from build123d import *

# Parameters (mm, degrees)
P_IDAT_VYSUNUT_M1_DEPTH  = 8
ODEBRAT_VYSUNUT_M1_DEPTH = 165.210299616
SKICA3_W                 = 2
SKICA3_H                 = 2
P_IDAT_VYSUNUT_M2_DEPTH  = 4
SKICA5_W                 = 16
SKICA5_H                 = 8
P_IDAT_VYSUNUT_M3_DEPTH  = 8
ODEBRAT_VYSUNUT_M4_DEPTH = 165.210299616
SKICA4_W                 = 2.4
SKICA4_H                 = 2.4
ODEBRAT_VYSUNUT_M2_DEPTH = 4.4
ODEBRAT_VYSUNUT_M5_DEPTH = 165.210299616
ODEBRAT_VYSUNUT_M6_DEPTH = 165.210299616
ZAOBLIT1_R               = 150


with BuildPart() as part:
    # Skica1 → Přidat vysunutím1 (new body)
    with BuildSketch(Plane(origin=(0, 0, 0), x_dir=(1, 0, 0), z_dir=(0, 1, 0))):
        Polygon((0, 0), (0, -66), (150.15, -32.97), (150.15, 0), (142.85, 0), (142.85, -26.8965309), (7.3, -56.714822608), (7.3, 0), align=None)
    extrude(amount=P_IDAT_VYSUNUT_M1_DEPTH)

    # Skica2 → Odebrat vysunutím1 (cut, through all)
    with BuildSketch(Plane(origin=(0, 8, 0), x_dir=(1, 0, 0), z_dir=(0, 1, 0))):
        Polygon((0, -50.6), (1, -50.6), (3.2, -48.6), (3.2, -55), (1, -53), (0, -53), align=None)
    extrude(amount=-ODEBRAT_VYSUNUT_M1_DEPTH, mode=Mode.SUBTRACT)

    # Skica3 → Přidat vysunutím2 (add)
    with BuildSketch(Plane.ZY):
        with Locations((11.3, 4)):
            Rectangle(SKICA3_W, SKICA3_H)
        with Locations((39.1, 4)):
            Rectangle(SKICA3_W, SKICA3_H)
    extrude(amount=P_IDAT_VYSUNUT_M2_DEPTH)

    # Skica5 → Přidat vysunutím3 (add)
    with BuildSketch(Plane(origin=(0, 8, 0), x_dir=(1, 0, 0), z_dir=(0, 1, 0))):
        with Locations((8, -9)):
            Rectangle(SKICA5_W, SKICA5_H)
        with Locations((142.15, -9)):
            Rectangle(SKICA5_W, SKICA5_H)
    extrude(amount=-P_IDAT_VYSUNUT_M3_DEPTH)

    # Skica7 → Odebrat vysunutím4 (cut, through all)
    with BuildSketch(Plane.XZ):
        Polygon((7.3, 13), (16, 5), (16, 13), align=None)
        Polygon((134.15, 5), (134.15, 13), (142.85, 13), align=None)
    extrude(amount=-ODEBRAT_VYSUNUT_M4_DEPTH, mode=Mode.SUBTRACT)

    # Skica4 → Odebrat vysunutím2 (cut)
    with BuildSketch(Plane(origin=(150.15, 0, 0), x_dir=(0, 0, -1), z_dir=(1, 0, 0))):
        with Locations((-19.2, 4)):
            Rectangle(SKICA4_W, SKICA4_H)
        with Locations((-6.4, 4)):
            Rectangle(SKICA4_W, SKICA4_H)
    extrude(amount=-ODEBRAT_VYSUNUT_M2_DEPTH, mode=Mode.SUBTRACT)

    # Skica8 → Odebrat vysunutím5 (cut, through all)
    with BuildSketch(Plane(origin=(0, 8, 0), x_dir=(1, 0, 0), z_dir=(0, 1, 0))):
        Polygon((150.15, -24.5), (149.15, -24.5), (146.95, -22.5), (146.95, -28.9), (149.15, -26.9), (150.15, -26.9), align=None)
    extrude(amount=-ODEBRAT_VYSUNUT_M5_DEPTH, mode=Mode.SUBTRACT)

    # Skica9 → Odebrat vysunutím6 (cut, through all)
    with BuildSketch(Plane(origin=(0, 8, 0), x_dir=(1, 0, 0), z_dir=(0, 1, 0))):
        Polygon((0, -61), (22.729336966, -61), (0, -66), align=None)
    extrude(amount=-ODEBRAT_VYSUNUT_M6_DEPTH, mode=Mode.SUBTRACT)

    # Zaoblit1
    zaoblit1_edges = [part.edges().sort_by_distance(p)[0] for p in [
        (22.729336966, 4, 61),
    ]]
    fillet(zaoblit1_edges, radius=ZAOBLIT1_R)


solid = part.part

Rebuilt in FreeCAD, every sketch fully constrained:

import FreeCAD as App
import Part
import Sketcher
from FreeCAD import Vector
Q = App.Units.Quantity


def edges_at(feature, points):
    """Names of the edges that pass closest to the given points."""
    edges = feature.Shape.Edges
    near = lambda p: min(range(len(edges)), key=lambda i: edges[i].distToShape(Part.Vertex(*p))[0])
    return sorted({f"Edge{near(p) + 1}" for p in points})


def add_polygon(sketch, points):
    """Adds a closed chain of lines whose ends are joined by coincident constraints."""
    first, n = sketch.GeometryCount, len(points)
    for a, b in zip(points, points[1:] + points[:1]):
        sketch.addGeometry(Part.LineSegment(App.Vector(*a, 0), App.Vector(*b, 0)), False)
    for i in range(n):
        sketch.addConstraint(Sketcher.Constraint("Coincident", first + i, 2, first + (i + 1) % n, 1))

doc = App.newDocument("Part")
body = doc.addObject("PartDesign::Body", "Body")

# Sketch on XZ plane
sketch1 = body.newObject("Sketcher::SketchObject", "Sketch")
sketch1.AttachmentSupport = (doc.getObject("XZ_Plane"), [""])
sketch1.MapMode = "FlatFace"
add_polygon(sketch1, [(0, 0), (0, 66), (150, 33), (150, 0), (143, 0), (143, 27), (7, 57), (7, 0)])  # lines 0-7
sketch1.addConstraint([
    Sketcher.Constraint("Vertical", 0),
    Sketcher.Constraint("Vertical", 2),
    Sketcher.Constraint("Horizontal", 3),
    Sketcher.Constraint("Vertical", 4),
    Sketcher.Constraint("Vertical", 6),
    Sketcher.Constraint("Horizontal", 7),
    Sketcher.Constraint("Coincident", 7, 2, -1, 1),
    Sketcher.Constraint("PointOnObject", 2, 2, -1),
    Sketcher.Constraint("Parallel", 1, 5),
    Sketcher.Constraint("Equal", 3, 7),
    Sketcher.Constraint("DistanceY", 0, 1, 0, 2, Q("66 mm")),
    Sketcher.Constraint("DistanceX", 3, 2, 3, 1, Q("7.3 mm")),
    Sketcher.Constraint("DistanceY", 2, 2, 2, 1, Q("32.97 mm")),
    Sketcher.Constraint("DistanceX", -1, 1, 1, 2, Q("150.15 mm")),
    Sketcher.Constraint("DistanceY", 4, 1, 4, 2, Q("26.896531 mm")),
])
pad1 = body.newObject("PartDesign::Pad", "Pad")
pad1.Profile = sketch1
pad1.Length = 8
pad1.Reversed = True

# Sketch on XZ plane
sketch2 = body.newObject("Sketcher::SketchObject", "Sketch001")
sketch2.AttachmentSupport = (doc.getObject("XZ_Plane"), [""])
sketch2.MapMode = "FlatFace"
sketch2.AttachmentOffset = App.Placement(Vector(0, 0, -8), App.Rotation())
add_polygon(sketch2, [(1, 50.6), (0, 50.6), (0, 53), (1, 53), (3.2, 55), (3.2, 48.6)])  # lines 0-5
sketch2.addConstraint([
    Sketcher.Constraint("Horizontal", 0),
    Sketcher.Constraint("Vertical", 1),
    Sketcher.Constraint("Horizontal", 2),
    Sketcher.Constraint("Vertical", 4),
    Sketcher.Constraint("PointOnObject", 0, 2, -2),
    Sketcher.Constraint("Vertical", 2, 2, 5, 2),
    Sketcher.Constraint("Equal", 3, 5),
    Sketcher.Constraint("DistanceX", 0, 2, 0, 1, Q("1 mm")),
    Sketcher.Constraint("DistanceY", 1, 1, 1, 2, Q("2.4 mm")),
    Sketcher.Constraint("DistanceY", 4, 2, 4, 1, Q("6.4 mm")),
    Sketcher.Constraint("DistanceY", -1, 1, 1, 2, Q("53 mm")),
    Sketcher.Constraint("DistanceX", -1, 1, 3, 2, Q("3.2 mm")),
])
pocket1 = body.newObject("PartDesign::Pocket", "Pocket")
pocket1.Profile = sketch2
pocket1.Type = "ThroughAll"
pocket1.Reversed = True

# Sketch on YZ plane
sketch3 = body.newObject("Sketcher::SketchObject", "Sketch002")
sketch3.AttachmentSupport = (doc.getObject("YZ_Plane"), [""])
sketch3.MapMode = "FlatFace"
add_polygon(sketch3, [(5, 10.3), (3, 10.3), (3, 12.3), (5, 12.3)])  # lines 0-3
add_polygon(sketch3, [(5, 38.1), (3, 38.1), (3, 40.1), (5, 40.1)])  # lines 4-7
sketch3.addConstraint([
    Sketcher.Constraint("Horizontal", 0),
    Sketcher.Constraint("Vertical", 1),
    Sketcher.Constraint("Horizontal", 2),
    Sketcher.Constraint("Vertical", 3),
    Sketcher.Constraint("Horizontal", 4),
    Sketcher.Constraint("Vertical", 5),
    Sketcher.Constraint("Horizontal", 6),
    Sketcher.Constraint("Vertical", 7),
    Sketcher.Constraint("Vertical", 1, 2, 4, 2),
    Sketcher.Constraint("Vertical", 3, 2, 6, 2),
    Sketcher.Constraint("Equal", 6, 1),
    Sketcher.Constraint("Equal", 3, 5),
    Sketcher.Constraint("DistanceX", 0, 2, 0, 1, Q("2 mm")),
    Sketcher.Constraint("DistanceX", -1, 1, 0, 2, Q("3 mm")),
    Sketcher.Constraint("DistanceY", -1, 1, 0, 2, Q("10.3 mm")),
    Sketcher.Constraint("DistanceY", -1, 1, 4, 2, Q("38.1 mm")),
])
pad2 = body.newObject("PartDesign::Pad", "Pad001")
pad2.Profile = sketch3
pad2.Length = 4
pad2.Reversed = True

# Sketch on XZ plane
sketch4 = body.newObject("Sketcher::SketchObject", "Sketch003")
sketch4.AttachmentSupport = (doc.getObject("XZ_Plane"), [""])
sketch4.MapMode = "FlatFace"
sketch4.AttachmentOffset = App.Placement(Vector(0, 0, -8), App.Rotation())
add_polygon(sketch4, [(0, 5), (0, 13), (16, 13), (16, 5)])  # lines 0-3
add_polygon(sketch4, [(134, 5), (134, 13), (150, 13), (150, 5)])  # lines 4-7
sketch4.addConstraint([
    Sketcher.Constraint("Vertical", 0),
    Sketcher.Constraint("Horizontal", 1),
    Sketcher.Constraint("Vertical", 2),
    Sketcher.Constraint("Horizontal", 3),
    Sketcher.Constraint("Vertical", 4),
    Sketcher.Constraint("Horizontal", 5),
    Sketcher.Constraint("Vertical", 6),
    Sketcher.Constraint("Horizontal", 7),
    Sketcher.Constraint("PointOnObject", 0, 2, -2),
    Sketcher.Constraint("Horizontal", 1, 2, 4, 2),
    Sketcher.Constraint("Horizontal", 3, 2, 6, 2),
    Sketcher.Constraint("Equal", 3, 5),
    Sketcher.Constraint("DistanceX", 1, 1, 1, 2, Q("16 mm")),
    Sketcher.Constraint("DistanceY", 0, 1, 0, 2, Q("8 mm")),
    Sketcher.Constraint("DistanceY", -1, 1, 0, 2, Q("13 mm")),
    Sketcher.Constraint("DistanceX", -1, 1, 4, 2, Q("134.15 mm")),
])
pad3 = body.newObject("PartDesign::Pad", "Pad002")
pad3.Profile = sketch4
pad3.Length = 8

# Sketch on XZ plane
sketch5 = body.newObject("Sketcher::SketchObject", "Sketch004")
sketch5.AttachmentSupport = (doc.getObject("XZ_Plane"), [""])
sketch5.MapMode = "FlatFace"
add_polygon(sketch5, [(7, 13), (16, 5), (16, 13)])  # lines 0-2
add_polygon(sketch5, [(134, 13), (134, 5), (143, 13)])  # lines 3-5
sketch5.addConstraint([
    Sketcher.Constraint("Vertical", 1),
    Sketcher.Constraint("Horizontal", 2),
    Sketcher.Constraint("Vertical", 3),
    Sketcher.Constraint("Horizontal", 5),
    Sketcher.Constraint("Horizontal", 0, 2, 3, 2),
    Sketcher.Constraint("Horizontal", 2, 2, 4, 2),
    Sketcher.Constraint("Equal", 2, 5),
    Sketcher.Constraint("DistanceY", 1, 1, 1, 2, Q("8 mm")),
    Sketcher.Constraint("DistanceX", 2, 2, 2, 1, Q("8.7 mm")),
    Sketcher.Constraint("DistanceX", -1, 1, 0, 2, Q("16 mm")),
    Sketcher.Constraint("DistanceY", -1, 1, 0, 2, Q("5 mm")),
    Sketcher.Constraint("DistanceX", -1, 1, 3, 2, Q("134.15 mm")),
])
pocket2 = body.newObject("PartDesign::Pocket", "Pocket001")
pocket2.Profile = sketch5
pocket2.Type = "ThroughAll"

# Sketch on YZ plane
sketch6 = body.newObject("Sketcher::SketchObject", "Sketch005")
sketch6.AttachmentSupport = (doc.getObject("YZ_Plane"), [""])
sketch6.MapMode = "FlatFace"
sketch6.AttachmentOffset = App.Placement(Vector(0, 0, 150.15), App.Rotation())
add_polygon(sketch6, [(5.2, 20.4), (2.8, 20.4), (2.8, 18), (5.2, 18)])  # lines 0-3
add_polygon(sketch6, [(5.2, 7.6), (2.8, 7.6), (2.8, 5.2), (5.2, 5.2)])  # lines 4-7
sketch6.addConstraint([
    Sketcher.Constraint("Horizontal", 0),
    Sketcher.Constraint("Vertical", 1),
    Sketcher.Constraint("Horizontal", 2),
    Sketcher.Constraint("Vertical", 3),
    Sketcher.Constraint("Horizontal", 4),
    Sketcher.Constraint("Vertical", 5),
    Sketcher.Constraint("Horizontal", 6),
    Sketcher.Constraint("Vertical", 7),
    Sketcher.Constraint("Vertical", 1, 2, 4, 2),
    Sketcher.Constraint("Vertical", 3, 2, 6, 2),
    Sketcher.Constraint("Equal", 6, 1),
    Sketcher.Constraint("Equal", 3, 5),
    Sketcher.Constraint("DistanceX", 0, 2, 0, 1, Q("2.4 mm")),
    Sketcher.Constraint("DistanceY", -1, 1, 1, 2, Q("18 mm")),
    Sketcher.Constraint("DistanceX", -1, 1, 0, 2, Q("2.8 mm")),
    Sketcher.Constraint("DistanceY", -1, 1, 4, 2, Q("7.6 mm")),
])
pocket3 = body.newObject("PartDesign::Pocket", "Pocket002")
pocket3.Profile = sketch6
pocket3.Length = 4.4

# Sketch on XZ plane
sketch7 = body.newObject("Sketcher::SketchObject", "Sketch006")
sketch7.AttachmentSupport = (doc.getObject("XZ_Plane"), [""])
sketch7.MapMode = "FlatFace"
sketch7.AttachmentOffset = App.Placement(Vector(0, 0, -8), App.Rotation())
add_polygon(sketch7, [(150.2, 24.5), (149.2, 24.5), (146.9, 22.5), (146.9, 28.9), (149.2, 26.9), (150.2, 26.9)])  # lines 0-5
sketch7.addConstraint([
    Sketcher.Constraint("Horizontal", 0),
    Sketcher.Constraint("Vertical", 2),
    Sketcher.Constraint("Horizontal", 4),
    Sketcher.Constraint("Vertical", 5),
    Sketcher.Constraint("Vertical", 0, 2, 3, 2),
    Sketcher.Constraint("Equal", 1, 3),
    Sketcher.Constraint("DistanceX", 0, 2, 0, 1, Q("1 mm")),
    Sketcher.Constraint("DistanceY", 2, 1, 2, 2, Q("6.4 mm")),
    Sketcher.Constraint("DistanceY", 5, 2, 5, 1, Q("2.4 mm")),
    Sketcher.Constraint("DistanceY", -1, 1, 0, 2, Q("24.5 mm")),
    Sketcher.Constraint("DistanceX", 1, 2, 0, 2, Q("2.2 mm")),
    Sketcher.Constraint("DistanceX", -1, 1, 0, 2, Q("149.15 mm")),
])
pocket4 = body.newObject("PartDesign::Pocket", "Pocket003")
pocket4.Profile = sketch7
pocket4.Type = "ThroughAll"
pocket4.Reversed = True

# Sketch on XZ plane
sketch8 = body.newObject("Sketcher::SketchObject", "Sketch007")
sketch8.AttachmentSupport = (doc.getObject("XZ_Plane"), [""])
sketch8.MapMode = "FlatFace"
sketch8.AttachmentOffset = App.Placement(Vector(0, 0, -8), App.Rotation())
add_polygon(sketch8, [(23, 61), (0, 61), (0, 66)])  # lines 0-2
sketch8.addConstraint([
    Sketcher.Constraint("Horizontal", 0),
    Sketcher.Constraint("Vertical", 1),
    Sketcher.Constraint("PointOnObject", 0, 2, -2),
    Sketcher.Constraint("DistanceY", 1, 1, 1, 2, Q("5 mm")),
    Sketcher.Constraint("DistanceY", -1, 1, 0, 2, Q("61 mm")),
    Sketcher.Constraint("Distance", 2, Q("23.27279 mm")),
])
pocket5 = body.newObject("PartDesign::Pocket", "Pocket004")
pocket5.Profile = sketch8
pocket5.Type = "ThroughAll"
pocket5.Reversed = True
doc.recompute()

fillet = body.newObject("PartDesign::Fillet", "Fillet")
fillet.Base = (pocket5, edges_at(pocket5, [(22.729, 4, 61)]))
fillet.Radius = 150

doc.recompute()
